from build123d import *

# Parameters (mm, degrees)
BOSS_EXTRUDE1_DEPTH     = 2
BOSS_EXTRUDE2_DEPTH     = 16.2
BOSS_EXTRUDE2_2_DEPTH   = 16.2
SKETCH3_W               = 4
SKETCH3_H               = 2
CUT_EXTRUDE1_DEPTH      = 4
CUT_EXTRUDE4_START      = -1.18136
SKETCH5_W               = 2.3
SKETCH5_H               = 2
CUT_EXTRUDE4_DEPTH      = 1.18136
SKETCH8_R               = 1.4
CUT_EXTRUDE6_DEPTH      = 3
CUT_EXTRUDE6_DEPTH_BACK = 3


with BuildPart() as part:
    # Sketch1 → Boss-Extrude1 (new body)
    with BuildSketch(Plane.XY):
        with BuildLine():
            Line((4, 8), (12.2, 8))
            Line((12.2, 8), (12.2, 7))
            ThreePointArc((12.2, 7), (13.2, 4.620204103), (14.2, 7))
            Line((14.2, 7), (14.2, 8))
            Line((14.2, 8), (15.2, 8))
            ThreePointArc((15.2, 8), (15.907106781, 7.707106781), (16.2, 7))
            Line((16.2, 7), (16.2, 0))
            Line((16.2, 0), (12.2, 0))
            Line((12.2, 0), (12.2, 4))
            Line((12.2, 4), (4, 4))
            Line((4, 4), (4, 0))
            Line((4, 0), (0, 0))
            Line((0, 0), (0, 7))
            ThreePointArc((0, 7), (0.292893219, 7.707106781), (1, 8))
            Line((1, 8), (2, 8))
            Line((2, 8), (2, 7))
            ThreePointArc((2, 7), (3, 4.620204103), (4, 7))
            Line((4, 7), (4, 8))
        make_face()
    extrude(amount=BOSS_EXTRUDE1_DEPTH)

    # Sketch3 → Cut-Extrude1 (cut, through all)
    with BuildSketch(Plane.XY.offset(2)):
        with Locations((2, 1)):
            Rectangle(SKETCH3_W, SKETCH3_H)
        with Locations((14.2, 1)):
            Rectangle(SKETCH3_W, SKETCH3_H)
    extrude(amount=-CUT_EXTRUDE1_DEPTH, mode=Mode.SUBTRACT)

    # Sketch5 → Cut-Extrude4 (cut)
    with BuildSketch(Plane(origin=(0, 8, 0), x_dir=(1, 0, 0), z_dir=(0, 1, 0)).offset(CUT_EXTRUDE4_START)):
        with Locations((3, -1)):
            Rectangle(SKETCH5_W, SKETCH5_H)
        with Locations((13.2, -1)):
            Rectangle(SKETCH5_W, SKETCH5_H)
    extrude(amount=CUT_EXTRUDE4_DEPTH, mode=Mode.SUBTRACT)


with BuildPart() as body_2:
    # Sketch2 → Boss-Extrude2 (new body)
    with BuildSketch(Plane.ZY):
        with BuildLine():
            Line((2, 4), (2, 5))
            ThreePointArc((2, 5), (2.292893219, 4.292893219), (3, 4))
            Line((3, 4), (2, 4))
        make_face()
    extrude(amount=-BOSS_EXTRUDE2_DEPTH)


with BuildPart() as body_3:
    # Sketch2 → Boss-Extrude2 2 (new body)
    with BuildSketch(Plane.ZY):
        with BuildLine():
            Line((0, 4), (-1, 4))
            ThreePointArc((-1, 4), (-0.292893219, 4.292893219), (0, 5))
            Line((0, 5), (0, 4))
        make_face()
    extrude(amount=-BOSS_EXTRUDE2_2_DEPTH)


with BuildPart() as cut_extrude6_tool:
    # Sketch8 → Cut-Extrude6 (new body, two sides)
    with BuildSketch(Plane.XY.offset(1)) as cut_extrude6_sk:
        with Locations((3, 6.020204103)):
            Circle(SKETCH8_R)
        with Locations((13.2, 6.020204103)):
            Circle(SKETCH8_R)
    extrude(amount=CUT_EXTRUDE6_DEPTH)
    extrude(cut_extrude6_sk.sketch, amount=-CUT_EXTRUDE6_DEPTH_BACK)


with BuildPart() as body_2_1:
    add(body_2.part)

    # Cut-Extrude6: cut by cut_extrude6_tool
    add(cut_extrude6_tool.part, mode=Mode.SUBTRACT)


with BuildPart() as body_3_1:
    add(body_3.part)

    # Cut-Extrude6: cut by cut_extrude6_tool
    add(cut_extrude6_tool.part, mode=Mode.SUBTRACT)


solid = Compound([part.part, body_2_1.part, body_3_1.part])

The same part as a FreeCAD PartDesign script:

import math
import FreeCAD as App
import Part
import Sketcher
from FreeCAD import Vector
Q = App.Units.Quantity

doc = App.newDocument("Part")
body = doc.addObject("PartDesign::Body", "Body")

sketch1 = body.newObject("Sketcher::SketchObject", "Sketch")
sketch1.AttachmentSupport = (doc.getObject("XY_Plane"), [""])
sketch1.MapMode = "FlatFace"
sketch1.addGeometry(Part.LineSegment(Vector(12.2, 8, 0), Vector(4, 8, 0)), False)
sketch1.addGeometry(Part.LineSegment(Vector(4, 8, 0), Vector(4, 7, 0)), False)
sketch1.addGeometry(Part.ArcOfCircle(Part.Circle(Vector(3, 6, 0), Vector(0, 0, 1), 1.4), math.radians(136), math.radians(404)), False)
sketch1.addGeometry(Part.LineSegment(Vector(2, 7, 0), Vector(2, 8, 0)), False)
sketch1.addGeometry(Part.LineSegment(Vector(2, 8, 0), Vector(1, 8, 0)), False)
sketch1.addGeometry(Part.ArcOfCircle(Part.Circle(Vector(1, 7, 0), Vector(0, 0, 1), 1), math.radians(90), math.radians(180)), False)
sketch1.addGeometry(Part.LineSegment(Vector(0, 7, 0), Vector(0, 0, 0)), False)
sketch1.addGeometry(Part.LineSegment(Vector(0, 0, 0), Vector(4, 0, 0)), False)
sketch1.addGeometry(Part.LineSegment(Vector(4, 0, 0), Vector(4, 4, 0)), False)
sketch1.addGeometry(Part.LineSegment(Vector(4, 4, 0), Vector(12.2, 4, 0)), False)
sketch1.addGeometry(Part.LineSegment(Vector(12.2, 4, 0), Vector(12.2, 0, 0)), False)
sketch1.addGeometry(Part.LineSegment(Vector(12.2, 0, 0), Vector(16.2, 0, 0)), False)
sketch1.addGeometry(Part.LineSegment(Vector(16.2, 0, 0), Vector(16.2, 7, 0)), False)
sketch1.addGeometry(Part.ArcOfCircle(Part.Circle(Vector(15.2, 7, 0), Vector(0, 0, 1), 1), math.radians(0), math.radians(90)), False)
sketch1.addGeometry(Part.LineSegment(Vector(15.2, 8, 0), Vector(14.2, 8, 0)), False)
sketch1.addGeometry(Part.LineSegment(Vector(14.2, 8, 0), Vector(14.2, 7, 0)), False)
sketch1.addGeometry(Part.ArcOfCircle(Part.Circle(Vector(13.2, 6, 0), Vector(0, 0, 1), 1.4), math.radians(136), math.radians(404)), False)
sketch1.addGeometry(Part.LineSegment(Vector(12.2, 7, 0), Vector(12.2, 8, 0)), False)
sketch1.addConstraint(Sketcher.Constraint("Coincident", 0, 2, 1, 1))
sketch1.addConstraint(Sketcher.Constraint("Coincident", 1, 2, 2, 2))
sketch1.addConstraint(Sketcher.Constraint("Coincident", 2, 1, 3, 1))
sketch1.addConstraint(Sketcher.Constraint("Coincident", 3, 2, 4, 1))
sketch1.addConstraint(Sketcher.Constraint("Tangent", 4, 2, 5, 1))
sketch1.addConstraint(Sketcher.Constraint("Tangent", 5, 2, 6, 1))
sketch1.addConstraint(Sketcher.Constraint("Coincident", 6, 2, 7, 1))
sketch1.addConstraint(Sketcher.Constraint("Coincident", 7, 2, 8, 1))
sketch1.addConstraint(Sketcher.Constraint("Coincident", 8, 2, 9, 1))
sketch1.addConstraint(Sketcher.Constraint("Coincident", 9, 2, 10, 1))
sketch1.addConstraint(Sketcher.Constraint("Coincident", 10, 2, 11, 1))
sketch1.addConstraint(Sketcher.Constraint("Coincident", 11, 2, 12, 1))
sketch1.addConstraint(Sketcher.Constraint("Tangent", 12, 2, 13, 1))
sketch1.addConstraint(Sketcher.Constraint("Tangent", 13, 2, 14, 1))
sketch1.addConstraint(Sketcher.Constraint("Coincident", 14, 2, 15, 1))
sketch1.addConstraint(Sketcher.Constraint("Coincident", 15, 2, 16, 2))
sketch1.addConstraint(Sketcher.Constraint("Coincident", 16, 1, 17, 1))
sketch1.addConstraint(Sketcher.Constraint("Coincident", 17, 2, 0, 1))
sketch1.addConstraint(Sketcher.Constraint("Horizontal", 0))
sketch1.addConstraint(Sketcher.Constraint("Vertical", 1))
sketch1.addConstraint(Sketcher.Constraint("Vertical", 3))
sketch1.addConstraint(Sketcher.Constraint("Horizontal", 4))
sketch1.addConstraint(Sketcher.Constraint("Vertical", 6))
sketch1.addConstraint(Sketcher.Constraint("Horizontal", 7))
sketch1.addConstraint(Sketcher.Constraint("Vertical", 8))
sketch1.addConstraint(Sketcher.Constraint("Horizontal", 9))
sketch1.addConstraint(Sketcher.Constraint("Vertical", 10))
sketch1.addConstraint(Sketcher.Constraint("Horizontal", 11))
sketch1.addConstraint(Sketcher.Constraint("Vertical", 12))
sketch1.addConstraint(Sketcher.Constraint("Horizontal", 14))
sketch1.addConstraint(Sketcher.Constraint("Vertical", 15))
sketch1.addConstraint(Sketcher.Constraint("Vertical", 17))
sketch1.addConstraint(Sketcher.Constraint("Coincident", 6, 2, -1, 1))
sketch1.addConstraint(Sketcher.Constraint("Equal", 5, 13))
sketch1.addConstraint(Sketcher.Constraint("Equal", 2, 16))
sketch1.addConstraint(Sketcher.Constraint("PointOnObject", 10, 2, -1))
sketch1.addConstraint(Sketcher.Constraint("Horizontal", 5, 3, 13, 3))
sketch1.addConstraint(Sketcher.Constraint("Horizontal", 2, 3, 16, 3))
sketch1.addConstraint(Sketcher.Constraint("Horizontal", 13, 3, 1, 2))
sketch1.addConstraint(Sketcher.Constraint("Horizontal", 1, 2, 2, 1))
sketch1.addConstraint(Sketcher.Constraint("Horizontal", 0, 2, 3, 2))
sketch1.addConstraint(Sketcher.Constraint("Horizontal", 12, 2, 15, 2))
sketch1.addConstraint(Sketcher.Constraint("Horizontal", 15, 2, 16, 1))
sketch1.addConstraint(Sketcher.Constraint("Vertical", 1, 2, 7, 2))
sketch1.addConstraint(Sketcher.Constraint("Vertical", 10, 2, 16, 1))
sketch1.addConstraint(Sketcher.Constraint("Equal", 7, 11))
sketch1.addConstraint(Sketcher.Constraint("Equal", 14, 1))
sketch1.addConstraint(Sketcher.Constraint("Equal", 11, 8))
sketch1.addConstraint(Sketcher.Constraint("Radius", 5, Q("1 mm")))
sketch1.addConstraint(Sketcher.Constraint("Radius", 2, Q("1.4 mm")))
sketch1.addConstraint(Sketcher.Constraint("DistanceX", 7, 1, 7, 2, Q("4 mm")))
sketch1.addConstraint(Sketcher.Constraint("DistanceY", 6, 2, 6, 1, Q("7 mm")))
sketch1.addConstraint(Sketcher.Constraint("DistanceX", 0, 2, 0, 1, Q("8.2 mm")))
pad1 = body.newObject("PartDesign::Pad", "Pad")
pad1.Profile = sketch1
pad1.Length = 2

sketch2 = body.newObject("Sketcher::SketchObject", "Sketch001")
sketch2.AttachmentSupport = (doc.getObject("XY_Plane"), [""])
sketch2.MapMode = "FlatFace"
sketch2.AttachmentOffset = App.Placement(Vector(0, 0, 2), App.Rotation())
sketch2.addGeometry(Part.LineSegment(Vector(0, 2, 0), Vector(0, 0, 0)), False)
sketch2.addGeometry(Part.LineSegment(Vector(0, 0, 0), Vector(4, 0, 0)), False)
sketch2.addGeometry(Part.LineSegment(Vector(4, 0, 0), Vector(4, 2, 0)), False)
sketch2.addGeometry(Part.LineSegment(Vector(4, 2, 0), Vector(0, 2, 0)), False)
sketch2.addGeometry(Part.LineSegment(Vector(12.2, 2, 0), Vector(12.2, 0, 0)), False)
sketch2.addGeometry(Part.LineSegment(Vector(12.2, 0, 0), Vector(16.2, 0, 0)), False)
sketch2.addGeometry(Part.LineSegment(Vector(16.2, 0, 0), Vector(16.2, 2, 0)), False)
sketch2.addGeometry(Part.LineSegment(Vector(16.2, 2, 0), Vector(12.2, 2, 0)), False)
sketch2.addConstraint(Sketcher.Constraint("Coincident", 0, 2, 1, 1))
sketch2.addConstraint(Sketcher.Constraint("Coincident", 1, 2, 2, 1))
sketch2.addConstraint(Sketcher.Constraint("Coincident", 2, 2, 3, 1))
sketch2.addConstraint(Sketcher.Constraint("Coincident", 3, 2, 0, 1))
sketch2.addConstraint(Sketcher.Constraint("Coincident", 4, 2, 5, 1))
sketch2.addConstraint(Sketcher.Constraint("Coincident", 5, 2, 6, 1))
sketch2.addConstraint(Sketcher.Constraint("Coincident", 6, 2, 7, 1))
sketch2.addConstraint(Sketcher.Constraint("Coincident", 7, 2, 4, 1))
sketch2.addConstraint(Sketcher.Constraint("Vertical", 0))
sketch2.addConstraint(Sketcher.Constraint("Horizontal", 1))
sketch2.addConstraint(Sketcher.Constraint("Vertical", 2))
sketch2.addConstraint(Sketcher.Constraint("Horizontal", 3))
sketch2.addConstraint(Sketcher.Constraint("Vertical", 4))
sketch2.addConstraint(Sketcher.Constraint("Horizontal", 5))
sketch2.addConstraint(Sketcher.Constraint("Vertical", 6))
sketch2.addConstraint(Sketcher.Constraint("Horizontal", 7))
sketch2.addConstraint(Sketcher.Constraint("Coincident", 0, 2, -1, 1))
sketch2.addConstraint(Sketcher.Constraint("PointOnObject", 4, 2, -1))
sketch2.addConstraint(Sketcher.Constraint("Horizontal", 3, 2, 6, 2))
sketch2.addConstraint(Sketcher.Constraint("Equal", 3, 5))
sketch2.addConstraint(Sketcher.Constraint("DistanceX", 1, 1, 1, 2, Q("4 mm")))
sketch2.addConstraint(Sketcher.Constraint("DistanceY", 0, 2, 0, 1, Q("2 mm")))
sketch2.addConstraint(Sketcher.Constraint("DistanceX", -1, 1, 4, 2, Q("12.2 mm")))
pocket1 = body.newObject("PartDesign::Pocket", "Pocket")
pocket1.Profile = sketch2
pocket1.Type = "ThroughAll"

sketch3 = body.newObject("Sketcher::SketchObject", "Sketch002")
sketch3.AttachmentSupport = (doc.getObject("XZ_Plane"), [""])
sketch3.MapMode = "FlatFace"
sketch3.AttachmentOffset = App.Placement(Vector(0, 0, -6.81864), App.Rotation())
sketch3.addGeometry(Part.LineSegment(Vector(1.9, 0, 0), Vector(1.9, 2, 0)), False)
sketch3.addGeometry(Part.LineSegment(Vector(1.9, 2, 0), Vector(4.2, 2, 0)), False)
sketch3.addGeometry(Part.LineSegment(Vector(4.2, 2, 0), Vector(4.2, 0, 0)), False)
sketch3.addGeometry(Part.LineSegment(Vector(4.2, 0, 0), Vector(1.9, 0, 0)), False)
sketch3.addGeometry(Part.LineSegment(Vector(12.1, 0, 0), Vector(12.1, 2, 0)), False)
sketch3.addGeometry(Part.LineSegment(Vector(12.1, 2, 0), Vector(14.3, 2, 0)), False)
sketch3.addGeometry(Part.LineSegment(Vector(14.3, 2, 0), Vector(14.3, 0, 0)), False)
sketch3.addGeometry(Part.LineSegment(Vector(14.3, 0, 0), Vector(12.1, 0, 0)), False)
sketch3.addConstraint(Sketcher.Constraint("Coincident", 0, 2, 1, 1))
sketch3.addConstraint(Sketcher.Constraint("Coincident", 1, 2, 2, 1))
sketch3.addConstraint(Sketcher.Constraint("Coincident", 2, 2, 3, 1))
sketch3.addConstraint(Sketcher.Constraint("Coincident", 3, 2, 0, 1))
sketch3.addConstraint(Sketcher.Constraint("Coincident", 4, 2, 5, 1))
sketch3.addConstraint(Sketcher.Constraint("Coincident", 5, 2, 6, 1))
sketch3.addConstraint(Sketcher.Constraint("Coincident", 6, 2, 7, 1))
sketch3.addConstraint(Sketcher.Constraint("Coincident", 7, 2, 4, 1))
sketch3.addConstraint(Sketcher.Constraint("Vertical", 0))
sketch3.addConstraint(Sketcher.Constraint("Horizontal", 1))
sketch3.addConstraint(Sketcher.Constraint("Vertical", 2))
sketch3.addConstraint(Sketcher.Constraint("Horizontal", 3))
sketch3.addConstraint(Sketcher.Constraint("Vertical", 4))
sketch3.addConstraint(Sketcher.Constraint("Horizontal", 5))
sketch3.addConstraint(Sketcher.Constraint("Vertical", 6))
sketch3.addConstraint(Sketcher.Constraint("Horizontal", 7))
sketch3.addConstraint(Sketcher.Constraint("PointOnObject", 2, 2, -1))
sketch3.addConstraint(Sketcher.Constraint("PointOnObject", 6, 2, -1))
sketch3.addConstraint(Sketcher.Constraint("Horizontal", 1, 2, 4, 2))
sketch3.addConstraint(Sketcher.Constraint("Equal", 3, 5))
sketch3.addConstraint(Sketcher.Constraint("DistanceY", 0, 1, 0, 2, Q("2 mm")))
sketch3.addConstraint(Sketcher.Constraint("DistanceX", 1, 1, 1, 2, Q("2.3 mm")))
sketch3.addConstraint(Sketcher.Constraint("DistanceX", 1, 2, 4, 2, Q("7.9 mm")))
sketch3.addConstraint(Sketcher.Constraint("DistanceX", -1, 1, 0, 2, Q("1.85 mm")))
pocket2 = body.newObject("PartDesign::Pocket", "Pocket001")
pocket2.Profile = sketch3
pocket2.Length = 1.18136
body2 = doc.addObject("PartDesign::Body", "Body001")

sketch4 = body2.newObject("Sketcher::SketchObject", "Sketch003")
sketch4.AttachmentSupport = (doc.getObject("YZ_Plane001"), [""])
sketch4.MapMode = "FlatFace"
sketch4.addGeometry(Part.LineSegment(Vector(5, 2, 0), Vector(4, 2, 0)), False)
sketch4.addGeometry(Part.LineSegment(Vector(4, 2, 0), Vector(4, 3, 0)), False)
sketch4.addGeometry(Part.ArcOfCircle(Part.Circle(Vector(5, 3, 0), Vector(0, 0, 1), 1), math.radians(-180), math.radians(-90)), False)
sketch4.addConstraint(Sketcher.Constraint("Coincident", 0, 2, 1, 1))
sketch4.addConstraint(Sketcher.Constraint("Tangent", 1, 2, 2, 1))
sketch4.addConstraint(Sketcher.Constraint("Tangent", 2, 2, 0, 1))
sketch4.addConstraint(Sketcher.Constraint("Horizontal", 0))
sketch4.addConstraint(Sketcher.Constraint("Vertical", 1))
sketch4.addConstraint(Sketcher.Constraint("Radius", 2, Q("1 mm")))
sketch4.addConstraint(Sketcher.Constraint("DistanceX", -1, 1, 2, 3, Q("5 mm")))
sketch4.addConstraint(Sketcher.Constraint("DistanceY", -1, 1, 2, 3, Q("3 mm")))
pad2 = body2.newObject("PartDesign::Pad", "Pad001")
pad2.Profile = sketch4
pad2.Length = 16.2
body3 = doc.addObject("PartDesign::Body", "Body002")

sketch5 = body3.newObject("Sketcher::SketchObject", "Sketch004")
sketch5.AttachmentSupport = (doc.getObject("YZ_Plane002"), [""])
sketch5.MapMode = "FlatFace"
sketch5.addGeometry(Part.LineSegment(Vector(4, -1, 0), Vector(4, 0, 0)), False)
sketch5.addGeometry(Part.LineSegment(Vector(4, 0, 0), Vector(5, 0, 0)), False)
sketch5.addGeometry(Part.ArcOfCircle(Part.Circle(Vector(5, -1, 0), Vector(0, 0, 1), 1), math.radians(90), math.radians(180)), False)
sketch5.addConstraint(Sketcher.Constraint("Coincident", 0, 2, 1, 1))
sketch5.addConstraint(Sketcher.Constraint("Tangent", 1, 2, 2, 1))
sketch5.addConstraint(Sketcher.Constraint("Tangent", 2, 2, 0, 1))
sketch5.addConstraint(Sketcher.Constraint("Vertical", 0))
sketch5.addConstraint(Sketcher.Constraint("Horizontal", 1))
sketch5.addConstraint(Sketcher.Constraint("PointOnObject", 0, 2, -1))
sketch5.addConstraint(Sketcher.Constraint("Radius", 2, Q("1 mm")))
sketch5.addConstraint(Sketcher.Constraint("DistanceX", -1, 1, 2, 3, Q("5 mm")))
pad3 = body3.newObject("PartDesign::Pad", "Pad002")
pad3.Profile = sketch5
pad3.Length = 16.2
body4 = doc.addObject("PartDesign::Body", "Body003")
body4.AllowCompound = True

sketch6 = body4.newObject("Sketcher::SketchObject", "Sketch005")
sketch6.AttachmentSupport = (doc.getObject("XY_Plane003"), [""])
sketch6.MapMode = "FlatFace"
sketch6.AttachmentOffset = App.Placement(Vector(0, 0, 1), App.Rotation())
sketch6.addGeometry(Part.Circle(Vector(3, 6, 0), Vector(0, 0, 1), 1.4), False)
sketch6.addGeometry(Part.Circle(Vector(13.2, 6, 0), Vector(0, 0, 1), 1.4), False)
sketch6.addConstraint(Sketcher.Constraint("Equal", 0, 1))
sketch6.addConstraint(Sketcher.Constraint("Horizontal", 0, 3, 1, 3))
sketch6.addConstraint(Sketcher.Constraint("Diameter", 0, Q("2.8 mm")))
sketch6.addConstraint(Sketcher.Constraint("DistanceX", -1, 1, 0, 3, Q("3 mm")))
sketch6.addConstraint(Sketcher.Constraint("DistanceX", -1, 1, 1, 3, Q("13.2 mm")))
sketch6.addConstraint(Sketcher.Constraint("DistanceY", -1, 1, 0, 3, Q("6.020204 mm")))
pad4 = body4.newObject("PartDesign::Pad", "Pad003")
pad4.Profile = sketch6
pad4.Type = "TwoLengths"
pad4.Length = 3
pad4.Length2 = 3
doc.recompute()

body5 = doc.addObject("PartDesign::Body", "Body004")
body5.BaseFeature = body4
boolean = body2.newObject("PartDesign::Boolean", "Boolean")
boolean.Type = "Cut"
boolean.addObjects([body5])
doc.recompute()

boolean2 = body3.newObject("PartDesign::Boolean", "Boolean001")
boolean2.Type = "Cut"
boolean2.addObjects([body4])

doc.recompute()
